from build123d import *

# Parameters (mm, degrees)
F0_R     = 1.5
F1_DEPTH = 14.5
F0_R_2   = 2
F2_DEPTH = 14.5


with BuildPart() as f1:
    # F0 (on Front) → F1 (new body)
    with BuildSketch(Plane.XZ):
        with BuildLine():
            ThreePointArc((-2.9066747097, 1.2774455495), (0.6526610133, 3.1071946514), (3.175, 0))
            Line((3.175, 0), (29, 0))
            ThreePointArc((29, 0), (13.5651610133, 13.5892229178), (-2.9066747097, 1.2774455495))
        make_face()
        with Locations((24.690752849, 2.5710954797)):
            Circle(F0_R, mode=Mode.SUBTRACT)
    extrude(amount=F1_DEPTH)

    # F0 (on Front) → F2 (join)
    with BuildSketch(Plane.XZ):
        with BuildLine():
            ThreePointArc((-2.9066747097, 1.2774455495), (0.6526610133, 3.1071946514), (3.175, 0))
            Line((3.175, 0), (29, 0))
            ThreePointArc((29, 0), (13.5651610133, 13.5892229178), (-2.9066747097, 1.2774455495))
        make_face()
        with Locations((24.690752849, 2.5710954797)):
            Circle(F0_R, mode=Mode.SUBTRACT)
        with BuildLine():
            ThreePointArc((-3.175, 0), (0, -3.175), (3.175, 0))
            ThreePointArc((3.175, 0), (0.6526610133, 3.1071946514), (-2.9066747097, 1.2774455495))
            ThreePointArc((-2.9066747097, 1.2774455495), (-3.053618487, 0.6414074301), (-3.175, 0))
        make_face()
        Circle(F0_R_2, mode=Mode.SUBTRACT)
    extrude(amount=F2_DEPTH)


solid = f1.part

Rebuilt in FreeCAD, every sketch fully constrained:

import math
import FreeCAD as App
import Part
import Sketcher

doc = App.newDocument("Part")
params = doc.addObject("Spreadsheet::Sheet", "Params")
for row, (alias, value) in enumerate([
    ("sketch1_diameter", "3 mm"),
    ("pad1_length", "14.5 mm"),
    ("sketch2_diameter", "4 mm"),
    ("sketch2_diameter2", "3 mm"),
    ("pad2_length", "14.5 mm"),
], start=1):
    params.set(f"A{row}", alias)
    params.set(f"B{row}", "=" + value)
    params.setAlias(f"B{row}", alias)

body = doc.addObject("PartDesign::Body", "Body")

# Sketch on XZ plane
sketch1 = doc.addObject("Sketcher::SketchObject", "Sketch")
body.addObject(sketch1)
sketch1.AttachmentSupport = (doc.XZ_Plane, [""])
sketch1.MapMode = "FlatFace"
sketch1.addGeometry(Part.ArcOfCircle(Part.Circle(App.Vector(0, 0, 0), App.Vector(0, 0, 1), 3.2), math.radians(0), math.radians(156)), False)
sketch1.addGeometry(Part.LineSegment(App.Vector(3.2, 0, 0), App.Vector(29, 0, 0)), False)
sketch1.addGeometry(Part.ArcOfCircle(Part.Circle(App.Vector(12.9, -2.7, 0), App.Vector(0, 0, 1), 16.3), math.radians(10), math.radians(166)), False)
sketch1.addGeometry(Part.Circle(App.Vector(24.7, 2.6, 0), App.Vector(0, 0, 1), 1.5), False)
sketch1.addConstraint(Sketcher.Constraint("Coincident", 0, 1, 1, 1))
sketch1.addConstraint(Sketcher.Constraint("Coincident", 1, 2, 2, 1))
sketch1.addConstraint(Sketcher.Constraint("Coincident", 2, 2, 0, 2))
sketch1.addConstraint(Sketcher.Constraint("Horizontal", 1))
sketch1.addConstraint(Sketcher.Constraint("Coincident", 0, 3, -1, 1))
sketch1.addConstraint(Sketcher.Constraint("PointOnObject", 0, 1, -1))
sketch1.addConstraint(Sketcher.Constraint("Diameter", 3, 3.0))
sketch1.addConstraint(Sketcher.Constraint("DistanceX", -1, 1, 1, 2, 29.0))
sketch1.addConstraint(Sketcher.Constraint("Radius", 0, 3.175))
sketch1.addConstraint(Sketcher.Constraint("Radius", 2, 16.314532))
sketch1.addConstraint(Sketcher.Constraint("DistanceX", -1, 1, 2, 3, 12.9125))
sketch1.addConstraint(Sketcher.Constraint("DistanceY", 2, 2, 3, 3, 1.29365))
sketch1.addConstraint(Sketcher.Constraint("DistanceX", -1, 1, 3, 3, 24.690753))
sketch1.setExpression("Constraints[6]", "Params.sketch1_diameter")
pad1 = doc.addObject("PartDesign::Pad", "Pad")
body.addObject(pad1)
pad1.Profile = sketch1
pad1.setExpression("Length", "Params.pad1_length")

# Sketch on XZ plane
sketch2 = doc.addObject("Sketcher::SketchObject", "Sketch001")
body.addObject(sketch2)
sketch2.AttachmentSupport = (doc.XZ_Plane, [""])
sketch2.MapMode = "FlatFace"
sketch2.addGeometry(Part.ArcOfCircle(Part.Circle(App.Vector(12.9, -2.7, 0), App.Vector(0, 0, 1), 16.3), math.radians(10), math.radians(166)), False)
sketch2.addGeometry(Part.ArcOfCircle(Part.Circle(App.Vector(12.9, -2.7, 0), App.Vector(0, 0, 1), 16.3), math.radians(165.84), math.radians(170.43)), False)
sketch2.addGeometry(Part.ArcOfCircle(Part.Circle(App.Vector(0, 0, 0), App.Vector(0, 0, 1), 3.2), math.radians(180), math.radians(360)), False)
sketch2.addGeometry(Part.LineSegment(App.Vector(3.2, 0, 0), App.Vector(29, 0, 0)), False)
sketch2.addGeometry(Part.Circle(App.Vector(0, 0, 0), App.Vector(0, 0, 1), 2), False)
sketch2.addGeometry(Part.Circle(App.Vector(24.7, 2.6, 0), App.Vector(0, 0, 1), 1.5), False)
sketch2.addConstraint(Sketcher.Constraint("Tangent", 0, 2, 1, 1))
sketch2.addConstraint(Sketcher.Constraint("Coincident", 1, 2, 2, 1))
sketch2.addConstraint(Sketcher.Constraint("Coincident", 2, 2, 3, 1))
sketch2.addConstraint(Sketcher.Constraint("Coincident", 3, 2, 0, 1))
sketch2.addConstraint(Sketcher.Constraint("Horizontal", 3))
sketch2.addConstraint(Sketcher.Constraint("Coincident", 2, 3, -1, 1))
sketch2.addConstraint(Sketcher.Constraint("Coincident", 4, 3, -1, 1))
sketch2.addConstraint(Sketcher.Constraint("Equal", 0, 1))
sketch2.addConstraint(Sketcher.Constraint("PointOnObject", 1, 2, -1))
sketch2.addConstraint(Sketcher.Constraint("PointOnObject", 2, 2, -1))
sketch2.addConstraint(Sketcher.Constraint("Diameter", 4, 4.0))
sketch2.addConstraint(Sketcher.Constraint("Diameter", 5, 3.0))
sketch2.addConstraint(Sketcher.Constraint("DistanceX", -1, 1, 3, 2, 29.0))
sketch2.addConstraint(Sketcher.Constraint("Radius", 2, 3.175))
sketch2.addConstraint(Sketcher.Constraint("Radius", 0, 16.314532))
sketch2.addConstraint(Sketcher.Constraint("DistanceY", 0, 2, 5, 3, 1.29365))
sketch2.addConstraint(Sketcher.Constraint("DistanceX", -1, 1, 5, 3, 24.690753))
sketch2.addConstraint(Sketcher.Constraint("DistanceY", -1, 1, 5, 3, 2.571095))
sketch2.setExpression("Constraints[10]", "Params.sketch2_diameter")
sketch2.setExpression("Constraints[11]", "Params.sketch2_diameter2")
pad2 = doc.addObject("PartDesign::Pad", "Pad001")
body.addObject(pad2)
pad2.Profile = sketch2
pad2.setExpression("Length", "Params.pad2_length")

doc.recompute()
